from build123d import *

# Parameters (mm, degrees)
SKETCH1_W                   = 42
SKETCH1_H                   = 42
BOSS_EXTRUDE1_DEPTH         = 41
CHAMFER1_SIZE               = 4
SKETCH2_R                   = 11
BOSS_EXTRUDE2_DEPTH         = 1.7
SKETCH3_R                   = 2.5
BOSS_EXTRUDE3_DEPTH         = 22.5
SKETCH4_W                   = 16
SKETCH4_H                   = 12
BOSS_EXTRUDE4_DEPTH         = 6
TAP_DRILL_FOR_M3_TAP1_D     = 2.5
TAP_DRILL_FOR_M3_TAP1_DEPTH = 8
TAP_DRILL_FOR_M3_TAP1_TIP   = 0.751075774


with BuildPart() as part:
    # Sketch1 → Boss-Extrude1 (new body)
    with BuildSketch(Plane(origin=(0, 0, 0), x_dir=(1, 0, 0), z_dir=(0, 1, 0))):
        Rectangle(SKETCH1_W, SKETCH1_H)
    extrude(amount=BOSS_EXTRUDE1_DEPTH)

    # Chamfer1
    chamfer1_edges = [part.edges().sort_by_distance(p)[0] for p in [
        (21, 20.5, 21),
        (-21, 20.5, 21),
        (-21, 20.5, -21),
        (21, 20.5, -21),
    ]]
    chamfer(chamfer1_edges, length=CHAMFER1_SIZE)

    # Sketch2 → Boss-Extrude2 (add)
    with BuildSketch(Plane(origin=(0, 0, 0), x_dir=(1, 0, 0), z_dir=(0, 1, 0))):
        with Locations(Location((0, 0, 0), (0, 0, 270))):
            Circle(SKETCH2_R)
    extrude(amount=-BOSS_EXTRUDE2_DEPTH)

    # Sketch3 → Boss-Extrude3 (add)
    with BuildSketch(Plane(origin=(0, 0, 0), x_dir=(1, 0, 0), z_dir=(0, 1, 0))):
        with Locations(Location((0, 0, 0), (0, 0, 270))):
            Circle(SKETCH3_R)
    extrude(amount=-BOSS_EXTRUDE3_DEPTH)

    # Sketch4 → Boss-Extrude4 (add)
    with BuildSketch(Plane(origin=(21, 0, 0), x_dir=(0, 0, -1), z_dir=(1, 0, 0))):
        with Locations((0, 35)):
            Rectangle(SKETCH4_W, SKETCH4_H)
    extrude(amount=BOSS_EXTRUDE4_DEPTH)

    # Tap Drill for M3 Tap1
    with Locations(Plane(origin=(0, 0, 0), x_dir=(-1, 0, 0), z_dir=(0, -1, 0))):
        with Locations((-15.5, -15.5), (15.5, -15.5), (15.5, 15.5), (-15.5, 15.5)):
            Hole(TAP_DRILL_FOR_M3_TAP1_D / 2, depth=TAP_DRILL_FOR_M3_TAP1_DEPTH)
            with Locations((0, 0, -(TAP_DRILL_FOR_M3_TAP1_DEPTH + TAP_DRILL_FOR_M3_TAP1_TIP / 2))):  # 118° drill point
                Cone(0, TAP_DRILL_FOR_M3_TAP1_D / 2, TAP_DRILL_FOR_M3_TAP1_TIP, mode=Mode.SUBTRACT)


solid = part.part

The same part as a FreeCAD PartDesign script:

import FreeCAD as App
import Part
import Sketcher

V = App.Vector
Q = App.Units.Quantity


def edges_at(feature, points):
    """Names of the edges that pass closest to the given points."""
    edges = feature.Shape.Edges
    near = lambda p: min(range(len(edges)), key=lambda i: edges[i].distToShape(Part.Vertex(*p))[0])
    return sorted({f"Edge{near(p) + 1}" for p in points})

doc = App.newDocument("Part")
params = doc.addObject("Spreadsheet::Sheet", "Params")
for row, (alias, value) in enumerate([
    ("sketch1_width", "42 mm"),
    ("pad1_length", "41 mm"),
    ("chamfer_size", "4 mm"),
    ("sketch2_diameter", "22 mm"),
    ("pad2_length", "1.7 mm"),
    ("sketch3_diameter", "5 mm"),
    ("pad3_length", "22.5 mm"),
    ("sketch4_width", "12 mm"),
    ("sketch4_height", "16 mm"),
    ("pad4_length", "6 mm"),
    ("sketch5_diameter", "2.5 mm"),
    ("hole_diameter", "2.5 mm"),
    ("hole_depth", "8 mm"),
], start=1):
    params.set(f"A{row}", alias)
    params.set(f"B{row}", "=" + value)
    params.setAlias(f"B{row}", alias)

body = doc.addObject("PartDesign::Body", "Body")

sketch1 = body.newObject("Sketcher::SketchObject", "Sketch")
sketch1.AttachmentSupport = (doc.getObject("XZ_Plane"), [""])
sketch1.MapMode = "FlatFace"
sketch1.addGeometry([
    Part.LineSegment(V(-21, -21, 0), V(-21, 21, 0)),
    Part.LineSegment(V(-21, 21, 0), V(21, 21, 0)),
    Part.LineSegment(V(21, 21, 0), V(21, -21, 0)),
    Part.LineSegment(V(21, -21, 0), V(-21, -21, 0)),
], False)
sketch1.addConstraint([
    Sketcher.Constraint("Coincident", 0, 2, 1, 1),
    Sketcher.Constraint("Coincident", 1, 2, 2, 1),
    Sketcher.Constraint("Coincident", 2, 2, 3, 1),
    Sketcher.Constraint("Coincident", 3, 2, 0, 1),
    Sketcher.Constraint("Vertical", 0),
    Sketcher.Constraint("Horizontal", 1),
    Sketcher.Constraint("Vertical", 2),
    Sketcher.Constraint("Horizontal", 3),
    Sketcher.Constraint("Symmetric", 0, 2, 2, 2, -1, 1),
    Sketcher.Constraint("Equal", 3, 0),
    Sketcher.Constraint("DistanceX", 1, 1, 1, 2, Q("42 mm")),
])
sketch1.setExpression("Constraints[10]", "Params.sketch1_width")
pad1 = body.newObject("PartDesign::Pad", "Pad")
pad1.Profile = sketch1
pad1.setExpression("Length", "Params.pad1_length")
pad1.Reversed = True
doc.recompute()

chamfer = body.newObject("PartDesign::Chamfer", "Chamfer")
chamfer.Base = (pad1, edges_at(pad1, [
    (21, 20.5, 21),
    (-21, 20.5, 21),
    (-21, 20.5, -21),
    (21, 20.5, -21),
]))
chamfer.setExpression("Size", "Params.chamfer_size")

sketch2 = body.newObject("Sketcher::SketchObject", "Sketch001")
sketch2.AttachmentSupport = (doc.getObject("XZ_Plane"), [""])
sketch2.MapMode = "FlatFace"
sketch2.addGeometry(Part.Circle(V(0, 0, 0), V(0, 0, 1), 11), False)
sketch2.addConstraint([
    Sketcher.Constraint("Coincident", 0, 3, -1, 1),
    Sketcher.Constraint("Diameter", 0, Q("22 mm")),
])
sketch2.setExpression("Constraints[1]", "Params.sketch2_diameter")
pad2 = body.newObject("PartDesign::Pad", "Pad001")
pad2.Profile = sketch2
pad2.setExpression("Length", "Params.pad2_length")

sketch3 = body.newObject("Sketcher::SketchObject", "Sketch002")
sketch3.AttachmentSupport = (doc.getObject("XZ_Plane"), [""])
sketch3.MapMode = "FlatFace"
sketch3.addGeometry(Part.Circle(V(0, 0, 0), V(0, 0, 1), 2.5), False)
sketch3.addConstraint([
    Sketcher.Constraint("Coincident", 0, 3, -1, 1),
    Sketcher.Constraint("Diameter", 0, Q("5 mm")),
])
sketch3.setExpression("Constraints[1]", "Params.sketch3_diameter")
pad3 = body.newObject("PartDesign::Pad", "Pad002")
pad3.Profile = sketch3
pad3.setExpression("Length", "Params.pad3_length")

sketch4 = body.newObject("Sketcher::SketchObject", "Sketch003")
sketch4.AttachmentSupport = (doc.getObject("YZ_Plane"), [""])
sketch4.MapMode = "FlatFace"
sketch4.AttachmentOffset = App.Placement(V(0, 0, 21), App.Rotation())
sketch4.addGeometry([
    Part.LineSegment(V(41, 8, 0), V(29, 8, 0)),
    Part.LineSegment(V(29, 8, 0), V(29, -8, 0)),
    Part.LineSegment(V(29, -8, 0), V(41, -8, 0)),
    Part.LineSegment(V(41, -8, 0), V(41, 8, 0)),
], False)
sketch4.addConstraint([
    Sketcher.Constraint("Coincident", 0, 2, 1, 1),
    Sketcher.Constraint("Coincident", 1, 2, 2, 1),
    Sketcher.Constraint("Coincident", 2, 2, 3, 1),
    Sketcher.Constraint("Coincident", 3, 2, 0, 1),
    Sketcher.Constraint("Horizontal", 0),
    Sketcher.Constraint("Vertical", 1),
    Sketcher.Constraint("Horizontal", 2),
    Sketcher.Constraint("Vertical", 3),
    Sketcher.Constraint("DistanceX", 0, 2, 0, 1, Q("12 mm")),
    Sketcher.Constraint("DistanceY", 1, 2, 1, 1, Q("16 mm")),
    Sketcher.Constraint("DistanceX", -1, 1, 0, 2, Q("29 mm")),
    Sketcher.Constraint("DistanceY", -1, 1, 0, 2, Q("8 mm")),
])
sketch4.setExpression("Constraints[8]", "Params.sketch4_width")
sketch4.setExpression("Constraints[9]", "Params.sketch4_height")
pad4 = body.newObject("PartDesign::Pad", "Pad003")
pad4.Profile = sketch4
pad4.setExpression("Length", "Params.pad4_length")

sketch5 = body.newObject("Sketcher::SketchObject", "Sketch004")
sketch5.AttachmentSupport = (doc.getObject("XZ_Plane"), [""])
sketch5.MapMode = "FlatFace"
sketch5.addGeometry([
    Part.Circle(V(15.5, 15.5, 0), V(0, 0, 1), 1.25),
    Part.Circle(V(-15.5, 15.5, 0), V(0, 0, 1), 1.25),
    Part.Circle(V(-15.5, -15.5, 0), V(0, 0, 1), 1.25),
    Part.Circle(V(15.5, -15.5, 0), V(0, 0, 1), 1.25),
], False)
sketch5.addConstraint([
    Sketcher.Constraint("Equal", 0, 1),
    Sketcher.Constraint("Equal", 1, 2),
    Sketcher.Constraint("Equal", 2, 3),
    Sketcher.Constraint("Symmetric", 0, 3, 2, 3, -1, 1),
    Sketcher.Constraint("Symmetric", 1, 3, 3, 3, -1, 1),
    Sketcher.Constraint("Symmetric", 0, 3, 1, 3, -2),
    Sketcher.Constraint("Diameter", 0, Q("2.5 mm")),
    Sketcher.Constraint("DistanceX", 1, 3, 0, 3, Q("31 mm")),
    Sketcher.Constraint("DistanceY", 2, 3, 1, 3, Q("31 mm")),
])
sketch5.setExpression("Constraints[6]", "Params.sketch5_diameter")
doc.recompute()
hole = body.newObject("PartDesign::Hole", "Hole")
hole.Profile = sketch5
hole.ThreadType = "None"
hole.setExpression("Diameter", "Params.hole_diameter")
hole.DepthType = "Dimension"
hole.setExpression("Depth", "Params.hole_depth")
hole.DrillPoint = "Angled"
hole.DrillPointAngle = 118

doc.recompute()
